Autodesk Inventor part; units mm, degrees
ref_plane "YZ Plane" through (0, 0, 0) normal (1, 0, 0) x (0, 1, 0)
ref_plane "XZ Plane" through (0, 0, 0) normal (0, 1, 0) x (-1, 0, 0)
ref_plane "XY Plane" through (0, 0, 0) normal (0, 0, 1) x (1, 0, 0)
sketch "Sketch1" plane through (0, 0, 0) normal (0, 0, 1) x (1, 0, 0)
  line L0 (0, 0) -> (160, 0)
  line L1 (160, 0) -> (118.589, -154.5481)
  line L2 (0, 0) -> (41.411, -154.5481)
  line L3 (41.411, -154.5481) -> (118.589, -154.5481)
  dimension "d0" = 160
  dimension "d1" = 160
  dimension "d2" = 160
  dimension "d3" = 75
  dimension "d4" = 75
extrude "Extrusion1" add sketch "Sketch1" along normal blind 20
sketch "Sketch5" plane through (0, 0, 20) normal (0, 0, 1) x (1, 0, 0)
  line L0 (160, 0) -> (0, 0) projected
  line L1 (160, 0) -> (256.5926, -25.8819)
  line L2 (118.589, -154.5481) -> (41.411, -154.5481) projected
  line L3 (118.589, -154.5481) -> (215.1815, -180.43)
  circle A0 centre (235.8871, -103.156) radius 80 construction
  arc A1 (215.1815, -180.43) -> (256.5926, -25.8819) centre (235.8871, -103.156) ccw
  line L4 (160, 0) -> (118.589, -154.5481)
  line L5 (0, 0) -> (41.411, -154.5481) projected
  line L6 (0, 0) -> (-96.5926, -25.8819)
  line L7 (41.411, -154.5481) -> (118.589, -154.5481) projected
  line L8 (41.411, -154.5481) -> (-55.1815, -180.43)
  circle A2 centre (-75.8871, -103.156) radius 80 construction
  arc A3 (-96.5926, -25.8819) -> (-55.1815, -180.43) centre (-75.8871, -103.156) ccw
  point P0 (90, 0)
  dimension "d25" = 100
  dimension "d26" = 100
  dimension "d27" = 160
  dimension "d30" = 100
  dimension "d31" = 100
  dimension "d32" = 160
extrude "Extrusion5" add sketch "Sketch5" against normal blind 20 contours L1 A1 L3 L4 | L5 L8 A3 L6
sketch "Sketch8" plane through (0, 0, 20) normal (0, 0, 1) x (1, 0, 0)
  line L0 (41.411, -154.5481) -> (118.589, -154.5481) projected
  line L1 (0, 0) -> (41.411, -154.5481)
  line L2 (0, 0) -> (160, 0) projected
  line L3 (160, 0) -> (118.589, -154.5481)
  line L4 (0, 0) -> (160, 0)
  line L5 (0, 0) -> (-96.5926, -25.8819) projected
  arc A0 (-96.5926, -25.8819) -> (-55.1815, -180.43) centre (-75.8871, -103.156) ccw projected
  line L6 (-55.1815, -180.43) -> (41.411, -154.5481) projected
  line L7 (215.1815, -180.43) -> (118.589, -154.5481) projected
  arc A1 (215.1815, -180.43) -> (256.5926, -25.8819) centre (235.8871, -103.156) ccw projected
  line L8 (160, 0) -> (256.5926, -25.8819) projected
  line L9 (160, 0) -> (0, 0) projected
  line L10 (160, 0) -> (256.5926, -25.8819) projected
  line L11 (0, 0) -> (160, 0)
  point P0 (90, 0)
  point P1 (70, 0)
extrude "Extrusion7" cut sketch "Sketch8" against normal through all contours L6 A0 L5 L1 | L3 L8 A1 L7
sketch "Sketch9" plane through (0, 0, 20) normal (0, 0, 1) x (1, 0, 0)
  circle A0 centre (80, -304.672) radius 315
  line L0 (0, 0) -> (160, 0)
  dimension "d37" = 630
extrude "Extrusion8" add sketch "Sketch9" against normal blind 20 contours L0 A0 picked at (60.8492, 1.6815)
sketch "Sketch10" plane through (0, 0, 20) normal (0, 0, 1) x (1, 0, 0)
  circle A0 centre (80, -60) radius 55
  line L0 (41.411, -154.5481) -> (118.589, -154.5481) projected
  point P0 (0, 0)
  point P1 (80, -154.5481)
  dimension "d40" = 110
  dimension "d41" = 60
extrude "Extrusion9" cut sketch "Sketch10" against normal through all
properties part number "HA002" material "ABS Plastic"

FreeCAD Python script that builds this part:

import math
import FreeCAD as App
import Part
import Sketcher
Q = App.Units.Quantity

doc = App.newDocument("Part")
params = doc.addObject("Spreadsheet::Sheet", "Params")
for row, (alias, value) in enumerate([
    ("sketch1_width", "160 mm"),
    ("sketch1_length", "160 mm"),
    ("pad1_length", "20 mm"),
    ("sketch2_radius", "80 mm"),
    ("sketch2_length", "100 mm"),
    ("pad2_length", "20 mm"),
    ("sketch3_radius", "80 mm"),
    ("sketch3_length", "100 mm"),
    ("sketch4_radius", "315 mm"),
    ("sketch4_width", "160 mm"),
    ("pad3_length", "20 mm"),
    ("sketch5_diameter", "110 mm"),
], start=1):
    params.set(f"A{row}", alias)
    params.set(f"B{row}", "=" + value)
    params.setAlias(f"B{row}", alias)

body = doc.addObject("PartDesign::Body", "Body")

sketch1 = body.newObject("Sketcher::SketchObject", "Sketch")
sketch1.AttachmentSupport = (doc.getObject("XY_Plane"), [""])
sketch1.MapMode = "FlatFace"
sketch1.addGeometry([
    Part.LineSegment(App.Vector(160, 0, 0), App.Vector(0, 0, 0)),
    Part.LineSegment(App.Vector(0, 0, 0), App.Vector(41, -155, 0)),
    Part.LineSegment(App.Vector(41, -155, 0), App.Vector(119, -155, 0)),
    Part.LineSegment(App.Vector(119, -155, 0), App.Vector(160, 0, 0)),
], False)
sketch1.addConstraint([
    Sketcher.Constraint("Coincident", 0, 2, 1, 1),
    Sketcher.Constraint("Coincident", 1, 2, 2, 1),
    Sketcher.Constraint("Coincident", 2, 2, 3, 1),
    Sketcher.Constraint("Coincident", 3, 2, 0, 1),
    Sketcher.Constraint("Horizontal", 0),
    Sketcher.Constraint("Horizontal", 2),
    Sketcher.Constraint("Coincident", 0, 2, -1, 1),
    Sketcher.Constraint("Equal", 1, 3),
    Sketcher.Constraint("DistanceX", 0, 2, 0, 1, 160.0),
    Sketcher.Constraint("Angle", 1, Q("-75 deg")),
    Sketcher.Constraint("Distance", 1, 160.0),
])
sketch1.setExpression("Constraints[8]", "Params.sketch1_width")
sketch1.setExpression("Constraints[10]", "Params.sketch1_length")
pad1 = body.newObject("PartDesign::Pad", "Pad")
pad1.Profile = sketch1
pad1.setExpression("Length", "Params.pad1_length")

sketch2 = body.newObject("Sketcher::SketchObject", "Sketch001")
sketch2.AttachmentSupport = (doc.getObject("XY_Plane"), [""])
sketch2.MapMode = "FlatFace"
sketch2.AttachmentOffset = App.Placement(App.Vector(0, 0, 20), App.Rotation())
sketch2.addGeometry([
    Part.LineSegment(App.Vector(257, -26, 0), App.Vector(160, 0, 0)),
    Part.LineSegment(App.Vector(160, 0, 0), App.Vector(119, -155, 0)),
    Part.LineSegment(App.Vector(119, -155, 0), App.Vector(215, -180, 0)),
    Part.ArcOfCircle(Part.Circle(App.Vector(236, -103, 0), App.Vector(0, 0, 1), 80), math.radians(-105), math.radians(75)),
    Part.LineSegment(App.Vector(41, -155, 0), App.Vector(0, 0, 0)),
    Part.LineSegment(App.Vector(0, 0, 0), App.Vector(-97, -26, 0)),
    Part.ArcOfCircle(Part.Circle(App.Vector(-76, -103, 0), App.Vector(0, 0, 1), 80), math.radians(105), math.radians(285)),
    Part.LineSegment(App.Vector(-55, -180, 0), App.Vector(41, -155, 0)),
], False)
sketch2.addConstraint([
    Sketcher.Constraint("Coincident", 0, 2, 1, 1),
    Sketcher.Constraint("Coincident", 1, 2, 2, 1),
    Sketcher.Constraint("Tangent", 2, 2, 3, 1),
    Sketcher.Constraint("Tangent", 3, 2, 0, 1),
    Sketcher.Constraint("Coincident", 4, 2, 5, 1),
    Sketcher.Constraint("Tangent", 5, 2, 6, 1),
    Sketcher.Constraint("Tangent", 6, 2, 7, 1),
    Sketcher.Constraint("Coincident", 7, 2, 4, 1),
    Sketcher.Constraint("Coincident", 4, 2, -1, 1),
    Sketcher.Constraint("Equal", 3, 6),
    Sketcher.Constraint("PointOnObject", 0, 2, -1),
    Sketcher.Constraint("Perpendicular", 0, 1),
    Sketcher.Constraint("Perpendicular", 1, 2),
    Sketcher.Constraint("Perpendicular", 4, 5),
    Sketcher.Constraint("Parallel", 5, 7),
    Sketcher.Constraint("Horizontal", 3, 3, 6, 3),
    Sketcher.Constraint("Horizontal", 3, 2, 5, 2),
    Sketcher.Constraint("Radius", 3, 80.0),
    Sketcher.Constraint("Distance", 0, 100.0),
    Sketcher.Constraint("DistanceX", -1, 1, 0, 2, 160.0),
    Sketcher.Constraint("Angle", 0, Q("165 deg")),
])
sketch2.setExpression("Constraints[17]", "Params.sketch2_radius")
sketch2.setExpression("Constraints[18]", "Params.sketch2_length")
pad2 = body.newObject("PartDesign::Pad", "Pad001")
pad2.Profile = sketch2
pad2.setExpression("Length", "Params.pad2_length")
pad2.Reversed = True

sketch3 = body.newObject("Sketcher::SketchObject", "Sketch002")
sketch3.AttachmentSupport = (doc.getObject("XY_Plane"), [""])
sketch3.MapMode = "FlatFace"
sketch3.AttachmentOffset = App.Placement(App.Vector(0, 0, 20), App.Rotation())
sketch3.addGeometry([
    Part.LineSegment(App.Vector(-55, -180, 0), App.Vector(41, -155, 0)),
    Part.LineSegment(App.Vector(41, -155, 0), App.Vector(0, 0, 0)),
    Part.LineSegment(App.Vector(0, 0, 0), App.Vector(-97, -26, 0)),
    Part.ArcOfCircle(Part.Circle(App.Vector(-76, -103, 0), App.Vector(0, 0, 1), 80), math.radians(105), math.radians(285)),
    Part.LineSegment(App.Vector(160, 0, 0), App.Vector(119, -155, 0)),
    Part.LineSegment(App.Vector(119, -155, 0), App.Vector(215, -180, 0)),
    Part.ArcOfCircle(Part.Circle(App.Vector(236, -103, 0), App.Vector(0, 0, 1), 80), math.radians(-105), math.radians(75)),
    Part.LineSegment(App.Vector(257, -26, 0), App.Vector(160, 0, 0)),
], False)
sketch3.addConstraint([
    Sketcher.Constraint("Coincident", 0, 2, 1, 1),
    Sketcher.Constraint("Coincident", 1, 2, 2, 1),
    Sketcher.Constraint("Tangent", 2, 2, 3, 1),
    Sketcher.Constraint("Tangent", 3, 2, 0, 1),
    Sketcher.Constraint("Coincident", 4, 2, 5, 1),
    Sketcher.Constraint("Tangent", 5, 2, 6, 1),
    Sketcher.Constraint("Tangent", 6, 2, 7, 1),
    Sketcher.Constraint("Coincident", 7, 2, 4, 1),
    Sketcher.Constraint("Coincident", 1, 2, -1, 1),
    Sketcher.Constraint("Equal", 3, 6),
    Sketcher.Constraint("PointOnObject", 7, 2, -1),
    Sketcher.Constraint("Perpendicular", 0, 1),
    Sketcher.Constraint("Perpendicular", 1, 2),
    Sketcher.Constraint("Perpendicular", 4, 5),
    Sketcher.Constraint("Parallel", 5, 7),
    Sketcher.Constraint("Horizontal", 3, 3, 6, 3),
    Sketcher.Constraint("Horizontal", 0, 2, 4, 2),
    Sketcher.Constraint("Radius", 3, 80.0),
    Sketcher.Constraint("Angle", 0, Q("15 deg")),
    Sketcher.Constraint("Distance", 0, 100.0),
    Sketcher.Constraint("DistanceX", -1, 1, 7, 2, 160.0),
])
sketch3.setExpression("Constraints[17]", "Params.sketch3_radius")
sketch3.setExpression("Constraints[19]", "Params.sketch3_length")
pocket1 = body.newObject("PartDesign::Pocket", "Pocket")
pocket1.Profile = sketch3
pocket1.Type = "ThroughAll"

sketch4 = body.newObject("Sketcher::SketchObject", "Sketch003")
sketch4.AttachmentSupport = (doc.getObject("XY_Plane"), [""])
sketch4.MapMode = "FlatFace"
sketch4.AttachmentOffset = App.Placement(App.Vector(0, 0, 20), App.Rotation())
sketch4.addGeometry([
    Part.LineSegment(App.Vector(0, 0, 0), App.Vector(160, 0, 0)),
    Part.ArcOfCircle(Part.Circle(App.Vector(80, -305, 0), App.Vector(0, 0, 1), 315), math.radians(75), math.radians(105)),
], False)
sketch4.addConstraint([
    Sketcher.Constraint("Coincident", 0, 1, 1, 2),
    Sketcher.Constraint("Coincident", 1, 1, 0, 2),
    Sketcher.Constraint("Horizontal", 0),
    Sketcher.Constraint("Coincident", 0, 1, -1, 1),
    Sketcher.Constraint("Radius", 1, 315.0),
    Sketcher.Constraint("DistanceX", 0, 1, 0, 2, 160.0),
])
sketch4.setExpression("Constraints[4]", "Params.sketch4_radius")
sketch4.setExpression("Constraints[5]", "Params.sketch4_width")
pad3 = body.newObject("PartDesign::Pad", "Pad002")
pad3.Profile = sketch4
pad3.setExpression("Length", "Params.pad3_length")
pad3.Reversed = True

sketch5 = body.newObject("Sketcher::SketchObject", "Sketch004")
sketch5.AttachmentSupport = (doc.getObject("XY_Plane"), [""])
sketch5.MapMode = "FlatFace"
sketch5.AttachmentOffset = App.Placement(App.Vector(0, 0, 20), App.Rotation())
sketch5.addGeometry(Part.Circle(App.Vector(80, -60, 0), App.Vector(0, 0, 1), 55), False)
sketch5.addConstraint([
    Sketcher.Constraint("Diameter", 0, 110.0),
    Sketcher.Constraint("DistanceY", 0, 3, -1, 1, 60.0),
    Sketcher.Constraint("DistanceX", -1, 1, 0, 3, 80.0),
])
sketch5.setExpression("Constraints[0]", "Params.sketch5_diameter")
pocket2 = body.newObject("PartDesign::Pocket", "Pocket001")
pocket2.Profile = sketch5
pocket2.Type = "ThroughAll"

doc.recompute()
